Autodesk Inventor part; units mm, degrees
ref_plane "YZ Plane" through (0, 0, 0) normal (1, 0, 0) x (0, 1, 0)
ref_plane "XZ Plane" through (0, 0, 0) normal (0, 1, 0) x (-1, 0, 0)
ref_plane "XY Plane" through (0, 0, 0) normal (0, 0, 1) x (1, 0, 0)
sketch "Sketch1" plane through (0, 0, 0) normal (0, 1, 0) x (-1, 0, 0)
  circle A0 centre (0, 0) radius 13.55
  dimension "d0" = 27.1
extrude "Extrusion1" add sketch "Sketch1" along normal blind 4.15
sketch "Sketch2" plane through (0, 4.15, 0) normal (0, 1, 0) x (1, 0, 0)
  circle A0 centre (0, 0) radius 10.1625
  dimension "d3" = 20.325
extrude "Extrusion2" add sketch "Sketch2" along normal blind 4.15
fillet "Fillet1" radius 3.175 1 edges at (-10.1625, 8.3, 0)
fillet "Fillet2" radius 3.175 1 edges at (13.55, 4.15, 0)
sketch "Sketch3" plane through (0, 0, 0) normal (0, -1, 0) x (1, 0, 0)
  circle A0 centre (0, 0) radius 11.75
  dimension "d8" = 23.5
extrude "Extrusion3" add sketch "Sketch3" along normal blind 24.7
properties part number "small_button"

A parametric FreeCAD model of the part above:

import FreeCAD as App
import Part
import Sketcher
from FreeCAD import Vector


def edges_at(feature, points):
    """Names of the edges that pass closest to the given points."""
    edges = feature.Shape.Edges
    near = lambda p: min(range(len(edges)), key=lambda i: edges[i].distToShape(Part.Vertex(*p))[0])
    return sorted({f"Edge{near(p) + 1}" for p in points})

doc = App.newDocument("Part")
body = doc.addObject("PartDesign::Body", "Body")

# Sketch on XZ plane
sketch1 = body.newObject("Sketcher::SketchObject", "Sketch")
sketch1.AttachmentSupport = (doc.getObject("XZ_Plane"), [""])
sketch1.MapMode = "FlatFace"
sketch1.addGeometry(Part.Circle(Vector(0, 0, 0), Vector(0, 0, 1), 13.55), False)
sketch1.addConstraint([
    Sketcher.Constraint("Coincident", 0, 3, -1, 1),
    Sketcher.Constraint("Diameter", 0, 27.1),
])
pad1 = body.newObject("PartDesign::Pad", "Pad")
pad1.Profile = sketch1
pad1.Length = 4.15
pad1.Reversed = True

# Sketch on XZ plane
sketch2 = body.newObject("Sketcher::SketchObject", "Sketch001")
sketch2.AttachmentSupport = (doc.getObject("XZ_Plane"), [""])
sketch2.MapMode = "FlatFace"
sketch2.AttachmentOffset = App.Placement(Vector(0, 0, -4.15), App.Rotation())
sketch2.addGeometry(Part.Circle(Vector(0, 0, 0), Vector(0, 0, 1), 10.1625), False)
sketch2.addConstraint([
    Sketcher.Constraint("Coincident", 0, 3, -1, 1),
    Sketcher.Constraint("Diameter", 0, 20.325),
])
pad2 = body.newObject("PartDesign::Pad", "Pad001")
pad2.Profile = sketch2
pad2.Length = 4.15
pad2.Reversed = True
doc.recompute()

fillet = body.newObject("PartDesign::Fillet", "Fillet")
fillet.Base = (pad2, edges_at(pad2, [(-10.162, 8.3, 0)]))
fillet.Radius = 3.175
doc.recompute()

fillet2 = body.newObject("PartDesign::Fillet", "Fillet001")
fillet2.Base = (fillet, edges_at(fillet, [(13.55, 4.15, 0)]))
fillet2.Radius = 3.175

# Sketch on XZ plane
sketch3 = body.newObject("Sketcher::SketchObject", "Sketch002")
sketch3.AttachmentSupport = (doc.getObject("XZ_Plane"), [""])
sketch3.MapMode = "FlatFace"
sketch3.addGeometry(Part.Circle(Vector(0, 0, 0), Vector(0, 0, 1), 11.75), False)
sketch3.addConstraint([
    Sketcher.Constraint("Coincident", 0, 3, -1, 1),
    Sketcher.Constraint("Diameter", 0, 23.5),
])
pad3 = body.newObject("PartDesign::Pad", "Pad002")
pad3.Profile = sketch3
pad3.Length = 24.7

doc.recompute()
